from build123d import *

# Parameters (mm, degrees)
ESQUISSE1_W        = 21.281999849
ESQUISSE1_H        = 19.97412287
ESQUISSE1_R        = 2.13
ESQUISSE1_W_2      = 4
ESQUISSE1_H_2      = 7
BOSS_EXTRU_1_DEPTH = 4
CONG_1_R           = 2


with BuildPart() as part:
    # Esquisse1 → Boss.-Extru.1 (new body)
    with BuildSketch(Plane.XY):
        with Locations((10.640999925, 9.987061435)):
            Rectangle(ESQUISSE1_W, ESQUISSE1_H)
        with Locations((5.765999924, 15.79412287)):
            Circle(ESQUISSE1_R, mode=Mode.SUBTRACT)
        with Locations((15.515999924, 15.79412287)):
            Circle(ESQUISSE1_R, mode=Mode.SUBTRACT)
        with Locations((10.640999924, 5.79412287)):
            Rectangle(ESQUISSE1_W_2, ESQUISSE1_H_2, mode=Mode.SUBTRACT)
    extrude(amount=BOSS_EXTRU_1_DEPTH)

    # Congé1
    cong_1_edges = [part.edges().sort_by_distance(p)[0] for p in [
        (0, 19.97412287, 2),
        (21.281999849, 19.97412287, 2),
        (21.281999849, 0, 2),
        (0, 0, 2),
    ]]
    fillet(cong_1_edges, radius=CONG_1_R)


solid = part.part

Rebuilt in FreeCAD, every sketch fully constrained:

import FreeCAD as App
import Part
import Sketcher


def edges_at(feature, points):
    """Names of the edges that pass closest to the given points."""
    edges = feature.Shape.Edges
    near = lambda p: min(range(len(edges)), key=lambda i: edges[i].distToShape(Part.Vertex(*p))[0])
    return sorted({f"Edge{near(p) + 1}" for p in points})


def add_polygon(sketch, points):
    """Adds a closed chain of lines whose ends are joined by coincident constraints."""
    first, n = sketch.GeometryCount, len(points)
    for a, b in zip(points, points[1:] + points[:1]):
        sketch.addGeometry(Part.LineSegment(App.Vector(*a, 0), App.Vector(*b, 0)), False)
    for i in range(n):
        sketch.addConstraint(Sketcher.Constraint("Coincident", first + i, 2, first + (i + 1) % n, 1))

doc = App.newDocument("Part")
body = doc.addObject("PartDesign::Body", "Body")

# Sketch on XY plane
sketch1 = body.newObject("Sketcher::SketchObject", "Sketch")
sketch1.AttachmentSupport = (doc.getObject("XY_Plane"), [""])
sketch1.MapMode = "FlatFace"
add_polygon(sketch1, [(0, 19.974123), (0, 0), (21.282, 0), (21.282, 19.974123)])  # lines 0-3
add_polygon(sketch1, [(12.641, 2.294123), (8.641, 2.294123), (8.641, 9.294123), (12.641, 9.294123)])  # lines 4-7
sketch1.addGeometry(Part.Circle(App.Vector(5.766, 15.794123, 0), App.Vector(0, 0, 1), 2.13), False)  # 8
sketch1.addGeometry(Part.Circle(App.Vector(15.516, 15.794123, 0), App.Vector(0, 0, 1), 2.13), False)  # 9
sketch1.addConstraint(Sketcher.Constraint("Vertical", 0))
sketch1.addConstraint(Sketcher.Constraint("Horizontal", 1))
sketch1.addConstraint(Sketcher.Constraint("Vertical", 2))
sketch1.addConstraint(Sketcher.Constraint("Horizontal", 3))
sketch1.addConstraint(Sketcher.Constraint("Horizontal", 4))
sketch1.addConstraint(Sketcher.Constraint("Vertical", 5))
sketch1.addConstraint(Sketcher.Constraint("Horizontal", 6))
sketch1.addConstraint(Sketcher.Constraint("Vertical", 7))
sketch1.addConstraint(Sketcher.Constraint("Coincident", 0, 2, -1, 1))
sketch1.addConstraint(Sketcher.Constraint("Equal", 8, 9))
sketch1.addConstraint(Sketcher.Constraint("Horizontal", 8, 3, 9, 3))
sketch1.addConstraint(Sketcher.Constraint("Diameter", 8, 4.26))
sketch1.addConstraint(Sketcher.Constraint("DistanceX", 4, 2, 4, 1, 4.0))
sketch1.addConstraint(Sketcher.Constraint("DistanceY", 5, 1, 5, 2, 7.0))
sketch1.addConstraint(Sketcher.Constraint("DistanceY", 4, 2, 8, 3, 13.5))
sketch1.addConstraint(Sketcher.Constraint("DistanceX", 1, 1, 1, 2, 21.282))
sketch1.addConstraint(Sketcher.Constraint("DistanceX", 8, 3, 9, 3, 9.75))
sketch1.addConstraint(Sketcher.Constraint("DistanceY", 9, 3, 2, 2, 4.18))
sketch1.addConstraint(Sketcher.Constraint("DistanceX", -1, 1, 8, 3, 5.766))
sketch1.addConstraint(Sketcher.Constraint("DistanceX", -1, 1, 4, 2, 8.641))
sketch1.addConstraint(Sketcher.Constraint("DistanceY", 0, 2, 0, 1, 19.974123))
pad1 = body.newObject("PartDesign::Pad", "Pad")
pad1.Profile = sketch1
pad1.Length = 4
doc.recompute()

fillet = body.newObject("PartDesign::Fillet", "Fillet")
fillet.Base = (pad1, edges_at(pad1, [
    (0, 19.974, 2),
    (21.282, 19.974, 2),
    (21.282, 0, 2),
    (0, 0, 2),
]))
fillet.Radius = 2

doc.recompute()
